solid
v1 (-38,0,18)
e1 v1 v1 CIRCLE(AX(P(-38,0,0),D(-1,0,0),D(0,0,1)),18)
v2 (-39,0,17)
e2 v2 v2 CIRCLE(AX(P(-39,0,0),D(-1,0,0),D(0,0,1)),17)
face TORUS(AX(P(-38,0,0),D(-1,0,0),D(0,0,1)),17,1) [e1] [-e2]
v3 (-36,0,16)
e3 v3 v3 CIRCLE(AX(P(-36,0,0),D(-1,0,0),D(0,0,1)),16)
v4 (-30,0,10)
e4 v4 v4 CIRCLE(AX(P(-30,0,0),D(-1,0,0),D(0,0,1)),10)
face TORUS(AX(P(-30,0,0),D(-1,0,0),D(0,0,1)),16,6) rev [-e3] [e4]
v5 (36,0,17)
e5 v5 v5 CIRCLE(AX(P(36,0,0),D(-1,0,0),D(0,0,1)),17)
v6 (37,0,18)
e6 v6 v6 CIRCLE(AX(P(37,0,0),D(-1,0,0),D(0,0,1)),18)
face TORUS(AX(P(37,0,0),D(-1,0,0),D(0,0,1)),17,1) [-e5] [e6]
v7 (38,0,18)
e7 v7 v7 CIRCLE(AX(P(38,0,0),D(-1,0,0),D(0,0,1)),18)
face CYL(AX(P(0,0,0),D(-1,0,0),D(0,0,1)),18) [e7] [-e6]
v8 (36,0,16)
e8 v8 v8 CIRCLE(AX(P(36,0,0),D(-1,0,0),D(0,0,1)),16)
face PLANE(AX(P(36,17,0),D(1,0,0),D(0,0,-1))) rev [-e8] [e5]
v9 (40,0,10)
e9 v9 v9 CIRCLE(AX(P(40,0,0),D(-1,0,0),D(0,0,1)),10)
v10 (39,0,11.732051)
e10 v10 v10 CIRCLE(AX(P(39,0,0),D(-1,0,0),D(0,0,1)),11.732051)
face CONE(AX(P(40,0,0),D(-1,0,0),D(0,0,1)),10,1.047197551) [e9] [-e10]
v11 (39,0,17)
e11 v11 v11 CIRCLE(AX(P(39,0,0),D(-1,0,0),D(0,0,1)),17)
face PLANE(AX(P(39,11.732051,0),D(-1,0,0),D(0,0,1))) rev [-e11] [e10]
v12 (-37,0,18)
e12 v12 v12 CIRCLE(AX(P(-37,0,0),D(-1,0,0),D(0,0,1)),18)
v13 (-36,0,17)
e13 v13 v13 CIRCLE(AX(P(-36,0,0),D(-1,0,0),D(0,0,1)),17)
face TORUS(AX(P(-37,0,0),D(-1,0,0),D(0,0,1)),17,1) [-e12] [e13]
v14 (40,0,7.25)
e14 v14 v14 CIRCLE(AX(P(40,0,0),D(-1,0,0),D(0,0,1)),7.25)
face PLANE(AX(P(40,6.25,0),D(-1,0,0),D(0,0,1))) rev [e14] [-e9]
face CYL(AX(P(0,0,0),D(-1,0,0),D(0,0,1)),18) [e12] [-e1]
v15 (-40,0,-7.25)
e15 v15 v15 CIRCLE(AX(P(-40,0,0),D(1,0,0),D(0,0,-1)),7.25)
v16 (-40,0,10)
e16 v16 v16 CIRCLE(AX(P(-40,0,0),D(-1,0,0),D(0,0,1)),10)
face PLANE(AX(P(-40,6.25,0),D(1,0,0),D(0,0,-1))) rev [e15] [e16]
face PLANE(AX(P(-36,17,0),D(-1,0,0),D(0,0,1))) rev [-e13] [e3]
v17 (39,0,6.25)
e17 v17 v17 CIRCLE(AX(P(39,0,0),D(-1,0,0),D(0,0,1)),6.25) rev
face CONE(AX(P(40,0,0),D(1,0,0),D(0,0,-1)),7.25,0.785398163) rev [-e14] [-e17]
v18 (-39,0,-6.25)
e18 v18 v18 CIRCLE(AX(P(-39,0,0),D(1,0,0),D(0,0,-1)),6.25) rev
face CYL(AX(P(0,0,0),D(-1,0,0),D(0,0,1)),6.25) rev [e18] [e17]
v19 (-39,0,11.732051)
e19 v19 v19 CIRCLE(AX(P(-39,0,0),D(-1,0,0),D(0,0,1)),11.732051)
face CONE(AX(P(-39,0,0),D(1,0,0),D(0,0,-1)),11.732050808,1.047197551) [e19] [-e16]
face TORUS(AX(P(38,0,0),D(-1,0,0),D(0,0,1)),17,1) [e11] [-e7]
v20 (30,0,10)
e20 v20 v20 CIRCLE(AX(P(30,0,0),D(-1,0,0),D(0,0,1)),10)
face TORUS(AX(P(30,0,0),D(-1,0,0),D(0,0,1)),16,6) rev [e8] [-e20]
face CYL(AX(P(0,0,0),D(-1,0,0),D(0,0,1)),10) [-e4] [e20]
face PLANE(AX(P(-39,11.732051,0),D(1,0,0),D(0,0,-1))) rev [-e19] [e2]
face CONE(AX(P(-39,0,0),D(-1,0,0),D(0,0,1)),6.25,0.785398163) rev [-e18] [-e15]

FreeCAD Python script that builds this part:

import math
import FreeCAD as App
import Part
import Sketcher

V = App.Vector
Q = App.Units.Quantity


def edges_at(feature, points):
    """Names of the edges that pass closest to the given points."""
    edges = feature.Shape.Edges
    near = lambda p: min(range(len(edges)), key=lambda i: edges[i].distToShape(Part.Vertex(*p))[0])
    return sorted({f"Edge{near(p) + 1}" for p in points})

doc = App.newDocument("Part")
body = doc.addObject("PartDesign::Body", "Body")

sketch1 = body.newObject("Sketcher::SketchObject", "Sketch")
sketch1.AttachmentSupport = (doc.getObject("XY_Plane"), [""])
sketch1.MapMode = "FlatFace"
sketch1.addGeometry([
    Part.LineSegment(V(40, 6.25, 0), V(40, 10, 0)),
    Part.LineSegment(V(40, 10, 0), V(39, 11.732051, 0)),
    Part.LineSegment(V(39, 11.732051, 0), V(39, 17, 0)),
    Part.ArcOfCircle(Part.Circle(V(38, 17, 0), V(0, 0, 1), 1), math.radians(0), math.radians(90)),
    Part.LineSegment(V(38, 18, 0), V(37, 18, 0)),
    Part.ArcOfCircle(Part.Circle(V(37, 17, 0), V(0, 0, 1), 1), math.radians(90), math.radians(180)),
    Part.LineSegment(V(36, 17, 0), V(36, 16, 0)),
    Part.ArcOfCircle(Part.Circle(V(30, 16, 0), V(0, 0, 1), 6), math.radians(-90), math.radians(0)),
    Part.LineSegment(V(30, 10, 0), V(-30, 10, 0)),
    Part.ArcOfCircle(Part.Circle(V(-30, 16, 0), V(0, 0, 1), 6), math.radians(180), math.radians(270)),
    Part.LineSegment(V(-36, 16, 0), V(-36, 17, 0)),
    Part.ArcOfCircle(Part.Circle(V(-37, 17, 0), V(0, 0, 1), 1), math.radians(0), math.radians(90)),
    Part.LineSegment(V(-37, 18, 0), V(-38, 18, 0)),
    Part.ArcOfCircle(Part.Circle(V(-38, 17, 0), V(0, 0, 1), 1), math.radians(90), math.radians(180)),
    Part.LineSegment(V(-39, 17, 0), V(-39, 11.732051, 0)),
    Part.LineSegment(V(-39, 11.732051, 0), V(-40, 10, 0)),
    Part.LineSegment(V(-40, 10, 0), V(-40, 6.25, 0)),
    Part.LineSegment(V(-40, 6.25, 0), V(40, 6.25, 0)),
], False)
sketch1.addConstraint([
    Sketcher.Constraint("Coincident", 0, 2, 1, 1),
    Sketcher.Constraint("Coincident", 1, 2, 2, 1),
    Sketcher.Constraint("Tangent", 2, 2, 3, 1),
    Sketcher.Constraint("Tangent", 3, 2, 4, 1),
    Sketcher.Constraint("Tangent", 4, 2, 5, 1),
    Sketcher.Constraint("Tangent", 5, 2, 6, 1),
    Sketcher.Constraint("Tangent", 6, 2, 7, 2),
    Sketcher.Constraint("Tangent", 7, 1, 8, 1),
    Sketcher.Constraint("Tangent", 8, 2, 9, 2),
    Sketcher.Constraint("Tangent", 9, 1, 10, 1),
    Sketcher.Constraint("Tangent", 10, 2, 11, 1),
    Sketcher.Constraint("Tangent", 11, 2, 12, 1),
    Sketcher.Constraint("Tangent", 12, 2, 13, 1),
    Sketcher.Constraint("Tangent", 13, 2, 14, 1),
    Sketcher.Constraint("Coincident", 14, 2, 15, 1),
    Sketcher.Constraint("Coincident", 15, 2, 16, 1),
    Sketcher.Constraint("Coincident", 16, 2, 17, 1),
    Sketcher.Constraint("Coincident", 17, 2, 0, 1),
    Sketcher.Constraint("Vertical", 0),
    Sketcher.Constraint("Vertical", 2),
    Sketcher.Constraint("Horizontal", 4),
    Sketcher.Constraint("Vertical", 6),
    Sketcher.Constraint("Horizontal", 8),
    Sketcher.Constraint("Vertical", 10),
    Sketcher.Constraint("Horizontal", 12),
    Sketcher.Constraint("Vertical", 14),
    Sketcher.Constraint("Vertical", 16),
    Sketcher.Constraint("Horizontal", 17),
    Sketcher.Constraint("Equal", 3, 5),
    Sketcher.Constraint("Equal", 7, 9),
    Sketcher.Constraint("Equal", 5, 11),
    Sketcher.Constraint("Equal", 11, 13),
    Sketcher.Constraint("Symmetric", 5, 3, 11, 3, -2),
    Sketcher.Constraint("Symmetric", 1, 2, 14, 2, -2),
    Sketcher.Constraint("Symmetric", 0, 2, 15, 2, -2),
    Sketcher.Constraint("Horizontal", 0, 2, 7, 1),
    Sketcher.Constraint("Equal", 12, 6),
    Sketcher.Constraint("Radius", 3, Q("1 mm")),
    Sketcher.Constraint("Radius", 7, Q("6 mm")),
    Sketcher.Constraint("DistanceX", 4, 2, 4, 1, Q("1 mm")),
    Sketcher.Constraint("DistanceX", 8, 2, 8, 1, Q("60 mm")),
    Sketcher.Constraint("DistanceX", 17, 1, 17, 2, Q("80 mm")),
    Sketcher.Constraint("Angle", 1, Q("120 deg")),
    Sketcher.Constraint("DistanceY", -1, 1, 3, 3, Q("17 mm")),
    Sketcher.Constraint("DistanceY", 0, 1, 0, 2, Q("3.75 mm")),
])
revolution = body.newObject("PartDesign::Revolution", "Revolution")
revolution.Profile = sketch1
revolution.ReferenceAxis = (sketch1, ["H_Axis"])
revolution.Angle = 360
doc.recompute()

chamfer = body.newObject("PartDesign::Chamfer", "Chamfer")
chamfer.Base = (revolution, edges_at(revolution, [(40, -6.25, 0), (-40, -6.25, 0)]))
chamfer.Size = 1

doc.recompute()
